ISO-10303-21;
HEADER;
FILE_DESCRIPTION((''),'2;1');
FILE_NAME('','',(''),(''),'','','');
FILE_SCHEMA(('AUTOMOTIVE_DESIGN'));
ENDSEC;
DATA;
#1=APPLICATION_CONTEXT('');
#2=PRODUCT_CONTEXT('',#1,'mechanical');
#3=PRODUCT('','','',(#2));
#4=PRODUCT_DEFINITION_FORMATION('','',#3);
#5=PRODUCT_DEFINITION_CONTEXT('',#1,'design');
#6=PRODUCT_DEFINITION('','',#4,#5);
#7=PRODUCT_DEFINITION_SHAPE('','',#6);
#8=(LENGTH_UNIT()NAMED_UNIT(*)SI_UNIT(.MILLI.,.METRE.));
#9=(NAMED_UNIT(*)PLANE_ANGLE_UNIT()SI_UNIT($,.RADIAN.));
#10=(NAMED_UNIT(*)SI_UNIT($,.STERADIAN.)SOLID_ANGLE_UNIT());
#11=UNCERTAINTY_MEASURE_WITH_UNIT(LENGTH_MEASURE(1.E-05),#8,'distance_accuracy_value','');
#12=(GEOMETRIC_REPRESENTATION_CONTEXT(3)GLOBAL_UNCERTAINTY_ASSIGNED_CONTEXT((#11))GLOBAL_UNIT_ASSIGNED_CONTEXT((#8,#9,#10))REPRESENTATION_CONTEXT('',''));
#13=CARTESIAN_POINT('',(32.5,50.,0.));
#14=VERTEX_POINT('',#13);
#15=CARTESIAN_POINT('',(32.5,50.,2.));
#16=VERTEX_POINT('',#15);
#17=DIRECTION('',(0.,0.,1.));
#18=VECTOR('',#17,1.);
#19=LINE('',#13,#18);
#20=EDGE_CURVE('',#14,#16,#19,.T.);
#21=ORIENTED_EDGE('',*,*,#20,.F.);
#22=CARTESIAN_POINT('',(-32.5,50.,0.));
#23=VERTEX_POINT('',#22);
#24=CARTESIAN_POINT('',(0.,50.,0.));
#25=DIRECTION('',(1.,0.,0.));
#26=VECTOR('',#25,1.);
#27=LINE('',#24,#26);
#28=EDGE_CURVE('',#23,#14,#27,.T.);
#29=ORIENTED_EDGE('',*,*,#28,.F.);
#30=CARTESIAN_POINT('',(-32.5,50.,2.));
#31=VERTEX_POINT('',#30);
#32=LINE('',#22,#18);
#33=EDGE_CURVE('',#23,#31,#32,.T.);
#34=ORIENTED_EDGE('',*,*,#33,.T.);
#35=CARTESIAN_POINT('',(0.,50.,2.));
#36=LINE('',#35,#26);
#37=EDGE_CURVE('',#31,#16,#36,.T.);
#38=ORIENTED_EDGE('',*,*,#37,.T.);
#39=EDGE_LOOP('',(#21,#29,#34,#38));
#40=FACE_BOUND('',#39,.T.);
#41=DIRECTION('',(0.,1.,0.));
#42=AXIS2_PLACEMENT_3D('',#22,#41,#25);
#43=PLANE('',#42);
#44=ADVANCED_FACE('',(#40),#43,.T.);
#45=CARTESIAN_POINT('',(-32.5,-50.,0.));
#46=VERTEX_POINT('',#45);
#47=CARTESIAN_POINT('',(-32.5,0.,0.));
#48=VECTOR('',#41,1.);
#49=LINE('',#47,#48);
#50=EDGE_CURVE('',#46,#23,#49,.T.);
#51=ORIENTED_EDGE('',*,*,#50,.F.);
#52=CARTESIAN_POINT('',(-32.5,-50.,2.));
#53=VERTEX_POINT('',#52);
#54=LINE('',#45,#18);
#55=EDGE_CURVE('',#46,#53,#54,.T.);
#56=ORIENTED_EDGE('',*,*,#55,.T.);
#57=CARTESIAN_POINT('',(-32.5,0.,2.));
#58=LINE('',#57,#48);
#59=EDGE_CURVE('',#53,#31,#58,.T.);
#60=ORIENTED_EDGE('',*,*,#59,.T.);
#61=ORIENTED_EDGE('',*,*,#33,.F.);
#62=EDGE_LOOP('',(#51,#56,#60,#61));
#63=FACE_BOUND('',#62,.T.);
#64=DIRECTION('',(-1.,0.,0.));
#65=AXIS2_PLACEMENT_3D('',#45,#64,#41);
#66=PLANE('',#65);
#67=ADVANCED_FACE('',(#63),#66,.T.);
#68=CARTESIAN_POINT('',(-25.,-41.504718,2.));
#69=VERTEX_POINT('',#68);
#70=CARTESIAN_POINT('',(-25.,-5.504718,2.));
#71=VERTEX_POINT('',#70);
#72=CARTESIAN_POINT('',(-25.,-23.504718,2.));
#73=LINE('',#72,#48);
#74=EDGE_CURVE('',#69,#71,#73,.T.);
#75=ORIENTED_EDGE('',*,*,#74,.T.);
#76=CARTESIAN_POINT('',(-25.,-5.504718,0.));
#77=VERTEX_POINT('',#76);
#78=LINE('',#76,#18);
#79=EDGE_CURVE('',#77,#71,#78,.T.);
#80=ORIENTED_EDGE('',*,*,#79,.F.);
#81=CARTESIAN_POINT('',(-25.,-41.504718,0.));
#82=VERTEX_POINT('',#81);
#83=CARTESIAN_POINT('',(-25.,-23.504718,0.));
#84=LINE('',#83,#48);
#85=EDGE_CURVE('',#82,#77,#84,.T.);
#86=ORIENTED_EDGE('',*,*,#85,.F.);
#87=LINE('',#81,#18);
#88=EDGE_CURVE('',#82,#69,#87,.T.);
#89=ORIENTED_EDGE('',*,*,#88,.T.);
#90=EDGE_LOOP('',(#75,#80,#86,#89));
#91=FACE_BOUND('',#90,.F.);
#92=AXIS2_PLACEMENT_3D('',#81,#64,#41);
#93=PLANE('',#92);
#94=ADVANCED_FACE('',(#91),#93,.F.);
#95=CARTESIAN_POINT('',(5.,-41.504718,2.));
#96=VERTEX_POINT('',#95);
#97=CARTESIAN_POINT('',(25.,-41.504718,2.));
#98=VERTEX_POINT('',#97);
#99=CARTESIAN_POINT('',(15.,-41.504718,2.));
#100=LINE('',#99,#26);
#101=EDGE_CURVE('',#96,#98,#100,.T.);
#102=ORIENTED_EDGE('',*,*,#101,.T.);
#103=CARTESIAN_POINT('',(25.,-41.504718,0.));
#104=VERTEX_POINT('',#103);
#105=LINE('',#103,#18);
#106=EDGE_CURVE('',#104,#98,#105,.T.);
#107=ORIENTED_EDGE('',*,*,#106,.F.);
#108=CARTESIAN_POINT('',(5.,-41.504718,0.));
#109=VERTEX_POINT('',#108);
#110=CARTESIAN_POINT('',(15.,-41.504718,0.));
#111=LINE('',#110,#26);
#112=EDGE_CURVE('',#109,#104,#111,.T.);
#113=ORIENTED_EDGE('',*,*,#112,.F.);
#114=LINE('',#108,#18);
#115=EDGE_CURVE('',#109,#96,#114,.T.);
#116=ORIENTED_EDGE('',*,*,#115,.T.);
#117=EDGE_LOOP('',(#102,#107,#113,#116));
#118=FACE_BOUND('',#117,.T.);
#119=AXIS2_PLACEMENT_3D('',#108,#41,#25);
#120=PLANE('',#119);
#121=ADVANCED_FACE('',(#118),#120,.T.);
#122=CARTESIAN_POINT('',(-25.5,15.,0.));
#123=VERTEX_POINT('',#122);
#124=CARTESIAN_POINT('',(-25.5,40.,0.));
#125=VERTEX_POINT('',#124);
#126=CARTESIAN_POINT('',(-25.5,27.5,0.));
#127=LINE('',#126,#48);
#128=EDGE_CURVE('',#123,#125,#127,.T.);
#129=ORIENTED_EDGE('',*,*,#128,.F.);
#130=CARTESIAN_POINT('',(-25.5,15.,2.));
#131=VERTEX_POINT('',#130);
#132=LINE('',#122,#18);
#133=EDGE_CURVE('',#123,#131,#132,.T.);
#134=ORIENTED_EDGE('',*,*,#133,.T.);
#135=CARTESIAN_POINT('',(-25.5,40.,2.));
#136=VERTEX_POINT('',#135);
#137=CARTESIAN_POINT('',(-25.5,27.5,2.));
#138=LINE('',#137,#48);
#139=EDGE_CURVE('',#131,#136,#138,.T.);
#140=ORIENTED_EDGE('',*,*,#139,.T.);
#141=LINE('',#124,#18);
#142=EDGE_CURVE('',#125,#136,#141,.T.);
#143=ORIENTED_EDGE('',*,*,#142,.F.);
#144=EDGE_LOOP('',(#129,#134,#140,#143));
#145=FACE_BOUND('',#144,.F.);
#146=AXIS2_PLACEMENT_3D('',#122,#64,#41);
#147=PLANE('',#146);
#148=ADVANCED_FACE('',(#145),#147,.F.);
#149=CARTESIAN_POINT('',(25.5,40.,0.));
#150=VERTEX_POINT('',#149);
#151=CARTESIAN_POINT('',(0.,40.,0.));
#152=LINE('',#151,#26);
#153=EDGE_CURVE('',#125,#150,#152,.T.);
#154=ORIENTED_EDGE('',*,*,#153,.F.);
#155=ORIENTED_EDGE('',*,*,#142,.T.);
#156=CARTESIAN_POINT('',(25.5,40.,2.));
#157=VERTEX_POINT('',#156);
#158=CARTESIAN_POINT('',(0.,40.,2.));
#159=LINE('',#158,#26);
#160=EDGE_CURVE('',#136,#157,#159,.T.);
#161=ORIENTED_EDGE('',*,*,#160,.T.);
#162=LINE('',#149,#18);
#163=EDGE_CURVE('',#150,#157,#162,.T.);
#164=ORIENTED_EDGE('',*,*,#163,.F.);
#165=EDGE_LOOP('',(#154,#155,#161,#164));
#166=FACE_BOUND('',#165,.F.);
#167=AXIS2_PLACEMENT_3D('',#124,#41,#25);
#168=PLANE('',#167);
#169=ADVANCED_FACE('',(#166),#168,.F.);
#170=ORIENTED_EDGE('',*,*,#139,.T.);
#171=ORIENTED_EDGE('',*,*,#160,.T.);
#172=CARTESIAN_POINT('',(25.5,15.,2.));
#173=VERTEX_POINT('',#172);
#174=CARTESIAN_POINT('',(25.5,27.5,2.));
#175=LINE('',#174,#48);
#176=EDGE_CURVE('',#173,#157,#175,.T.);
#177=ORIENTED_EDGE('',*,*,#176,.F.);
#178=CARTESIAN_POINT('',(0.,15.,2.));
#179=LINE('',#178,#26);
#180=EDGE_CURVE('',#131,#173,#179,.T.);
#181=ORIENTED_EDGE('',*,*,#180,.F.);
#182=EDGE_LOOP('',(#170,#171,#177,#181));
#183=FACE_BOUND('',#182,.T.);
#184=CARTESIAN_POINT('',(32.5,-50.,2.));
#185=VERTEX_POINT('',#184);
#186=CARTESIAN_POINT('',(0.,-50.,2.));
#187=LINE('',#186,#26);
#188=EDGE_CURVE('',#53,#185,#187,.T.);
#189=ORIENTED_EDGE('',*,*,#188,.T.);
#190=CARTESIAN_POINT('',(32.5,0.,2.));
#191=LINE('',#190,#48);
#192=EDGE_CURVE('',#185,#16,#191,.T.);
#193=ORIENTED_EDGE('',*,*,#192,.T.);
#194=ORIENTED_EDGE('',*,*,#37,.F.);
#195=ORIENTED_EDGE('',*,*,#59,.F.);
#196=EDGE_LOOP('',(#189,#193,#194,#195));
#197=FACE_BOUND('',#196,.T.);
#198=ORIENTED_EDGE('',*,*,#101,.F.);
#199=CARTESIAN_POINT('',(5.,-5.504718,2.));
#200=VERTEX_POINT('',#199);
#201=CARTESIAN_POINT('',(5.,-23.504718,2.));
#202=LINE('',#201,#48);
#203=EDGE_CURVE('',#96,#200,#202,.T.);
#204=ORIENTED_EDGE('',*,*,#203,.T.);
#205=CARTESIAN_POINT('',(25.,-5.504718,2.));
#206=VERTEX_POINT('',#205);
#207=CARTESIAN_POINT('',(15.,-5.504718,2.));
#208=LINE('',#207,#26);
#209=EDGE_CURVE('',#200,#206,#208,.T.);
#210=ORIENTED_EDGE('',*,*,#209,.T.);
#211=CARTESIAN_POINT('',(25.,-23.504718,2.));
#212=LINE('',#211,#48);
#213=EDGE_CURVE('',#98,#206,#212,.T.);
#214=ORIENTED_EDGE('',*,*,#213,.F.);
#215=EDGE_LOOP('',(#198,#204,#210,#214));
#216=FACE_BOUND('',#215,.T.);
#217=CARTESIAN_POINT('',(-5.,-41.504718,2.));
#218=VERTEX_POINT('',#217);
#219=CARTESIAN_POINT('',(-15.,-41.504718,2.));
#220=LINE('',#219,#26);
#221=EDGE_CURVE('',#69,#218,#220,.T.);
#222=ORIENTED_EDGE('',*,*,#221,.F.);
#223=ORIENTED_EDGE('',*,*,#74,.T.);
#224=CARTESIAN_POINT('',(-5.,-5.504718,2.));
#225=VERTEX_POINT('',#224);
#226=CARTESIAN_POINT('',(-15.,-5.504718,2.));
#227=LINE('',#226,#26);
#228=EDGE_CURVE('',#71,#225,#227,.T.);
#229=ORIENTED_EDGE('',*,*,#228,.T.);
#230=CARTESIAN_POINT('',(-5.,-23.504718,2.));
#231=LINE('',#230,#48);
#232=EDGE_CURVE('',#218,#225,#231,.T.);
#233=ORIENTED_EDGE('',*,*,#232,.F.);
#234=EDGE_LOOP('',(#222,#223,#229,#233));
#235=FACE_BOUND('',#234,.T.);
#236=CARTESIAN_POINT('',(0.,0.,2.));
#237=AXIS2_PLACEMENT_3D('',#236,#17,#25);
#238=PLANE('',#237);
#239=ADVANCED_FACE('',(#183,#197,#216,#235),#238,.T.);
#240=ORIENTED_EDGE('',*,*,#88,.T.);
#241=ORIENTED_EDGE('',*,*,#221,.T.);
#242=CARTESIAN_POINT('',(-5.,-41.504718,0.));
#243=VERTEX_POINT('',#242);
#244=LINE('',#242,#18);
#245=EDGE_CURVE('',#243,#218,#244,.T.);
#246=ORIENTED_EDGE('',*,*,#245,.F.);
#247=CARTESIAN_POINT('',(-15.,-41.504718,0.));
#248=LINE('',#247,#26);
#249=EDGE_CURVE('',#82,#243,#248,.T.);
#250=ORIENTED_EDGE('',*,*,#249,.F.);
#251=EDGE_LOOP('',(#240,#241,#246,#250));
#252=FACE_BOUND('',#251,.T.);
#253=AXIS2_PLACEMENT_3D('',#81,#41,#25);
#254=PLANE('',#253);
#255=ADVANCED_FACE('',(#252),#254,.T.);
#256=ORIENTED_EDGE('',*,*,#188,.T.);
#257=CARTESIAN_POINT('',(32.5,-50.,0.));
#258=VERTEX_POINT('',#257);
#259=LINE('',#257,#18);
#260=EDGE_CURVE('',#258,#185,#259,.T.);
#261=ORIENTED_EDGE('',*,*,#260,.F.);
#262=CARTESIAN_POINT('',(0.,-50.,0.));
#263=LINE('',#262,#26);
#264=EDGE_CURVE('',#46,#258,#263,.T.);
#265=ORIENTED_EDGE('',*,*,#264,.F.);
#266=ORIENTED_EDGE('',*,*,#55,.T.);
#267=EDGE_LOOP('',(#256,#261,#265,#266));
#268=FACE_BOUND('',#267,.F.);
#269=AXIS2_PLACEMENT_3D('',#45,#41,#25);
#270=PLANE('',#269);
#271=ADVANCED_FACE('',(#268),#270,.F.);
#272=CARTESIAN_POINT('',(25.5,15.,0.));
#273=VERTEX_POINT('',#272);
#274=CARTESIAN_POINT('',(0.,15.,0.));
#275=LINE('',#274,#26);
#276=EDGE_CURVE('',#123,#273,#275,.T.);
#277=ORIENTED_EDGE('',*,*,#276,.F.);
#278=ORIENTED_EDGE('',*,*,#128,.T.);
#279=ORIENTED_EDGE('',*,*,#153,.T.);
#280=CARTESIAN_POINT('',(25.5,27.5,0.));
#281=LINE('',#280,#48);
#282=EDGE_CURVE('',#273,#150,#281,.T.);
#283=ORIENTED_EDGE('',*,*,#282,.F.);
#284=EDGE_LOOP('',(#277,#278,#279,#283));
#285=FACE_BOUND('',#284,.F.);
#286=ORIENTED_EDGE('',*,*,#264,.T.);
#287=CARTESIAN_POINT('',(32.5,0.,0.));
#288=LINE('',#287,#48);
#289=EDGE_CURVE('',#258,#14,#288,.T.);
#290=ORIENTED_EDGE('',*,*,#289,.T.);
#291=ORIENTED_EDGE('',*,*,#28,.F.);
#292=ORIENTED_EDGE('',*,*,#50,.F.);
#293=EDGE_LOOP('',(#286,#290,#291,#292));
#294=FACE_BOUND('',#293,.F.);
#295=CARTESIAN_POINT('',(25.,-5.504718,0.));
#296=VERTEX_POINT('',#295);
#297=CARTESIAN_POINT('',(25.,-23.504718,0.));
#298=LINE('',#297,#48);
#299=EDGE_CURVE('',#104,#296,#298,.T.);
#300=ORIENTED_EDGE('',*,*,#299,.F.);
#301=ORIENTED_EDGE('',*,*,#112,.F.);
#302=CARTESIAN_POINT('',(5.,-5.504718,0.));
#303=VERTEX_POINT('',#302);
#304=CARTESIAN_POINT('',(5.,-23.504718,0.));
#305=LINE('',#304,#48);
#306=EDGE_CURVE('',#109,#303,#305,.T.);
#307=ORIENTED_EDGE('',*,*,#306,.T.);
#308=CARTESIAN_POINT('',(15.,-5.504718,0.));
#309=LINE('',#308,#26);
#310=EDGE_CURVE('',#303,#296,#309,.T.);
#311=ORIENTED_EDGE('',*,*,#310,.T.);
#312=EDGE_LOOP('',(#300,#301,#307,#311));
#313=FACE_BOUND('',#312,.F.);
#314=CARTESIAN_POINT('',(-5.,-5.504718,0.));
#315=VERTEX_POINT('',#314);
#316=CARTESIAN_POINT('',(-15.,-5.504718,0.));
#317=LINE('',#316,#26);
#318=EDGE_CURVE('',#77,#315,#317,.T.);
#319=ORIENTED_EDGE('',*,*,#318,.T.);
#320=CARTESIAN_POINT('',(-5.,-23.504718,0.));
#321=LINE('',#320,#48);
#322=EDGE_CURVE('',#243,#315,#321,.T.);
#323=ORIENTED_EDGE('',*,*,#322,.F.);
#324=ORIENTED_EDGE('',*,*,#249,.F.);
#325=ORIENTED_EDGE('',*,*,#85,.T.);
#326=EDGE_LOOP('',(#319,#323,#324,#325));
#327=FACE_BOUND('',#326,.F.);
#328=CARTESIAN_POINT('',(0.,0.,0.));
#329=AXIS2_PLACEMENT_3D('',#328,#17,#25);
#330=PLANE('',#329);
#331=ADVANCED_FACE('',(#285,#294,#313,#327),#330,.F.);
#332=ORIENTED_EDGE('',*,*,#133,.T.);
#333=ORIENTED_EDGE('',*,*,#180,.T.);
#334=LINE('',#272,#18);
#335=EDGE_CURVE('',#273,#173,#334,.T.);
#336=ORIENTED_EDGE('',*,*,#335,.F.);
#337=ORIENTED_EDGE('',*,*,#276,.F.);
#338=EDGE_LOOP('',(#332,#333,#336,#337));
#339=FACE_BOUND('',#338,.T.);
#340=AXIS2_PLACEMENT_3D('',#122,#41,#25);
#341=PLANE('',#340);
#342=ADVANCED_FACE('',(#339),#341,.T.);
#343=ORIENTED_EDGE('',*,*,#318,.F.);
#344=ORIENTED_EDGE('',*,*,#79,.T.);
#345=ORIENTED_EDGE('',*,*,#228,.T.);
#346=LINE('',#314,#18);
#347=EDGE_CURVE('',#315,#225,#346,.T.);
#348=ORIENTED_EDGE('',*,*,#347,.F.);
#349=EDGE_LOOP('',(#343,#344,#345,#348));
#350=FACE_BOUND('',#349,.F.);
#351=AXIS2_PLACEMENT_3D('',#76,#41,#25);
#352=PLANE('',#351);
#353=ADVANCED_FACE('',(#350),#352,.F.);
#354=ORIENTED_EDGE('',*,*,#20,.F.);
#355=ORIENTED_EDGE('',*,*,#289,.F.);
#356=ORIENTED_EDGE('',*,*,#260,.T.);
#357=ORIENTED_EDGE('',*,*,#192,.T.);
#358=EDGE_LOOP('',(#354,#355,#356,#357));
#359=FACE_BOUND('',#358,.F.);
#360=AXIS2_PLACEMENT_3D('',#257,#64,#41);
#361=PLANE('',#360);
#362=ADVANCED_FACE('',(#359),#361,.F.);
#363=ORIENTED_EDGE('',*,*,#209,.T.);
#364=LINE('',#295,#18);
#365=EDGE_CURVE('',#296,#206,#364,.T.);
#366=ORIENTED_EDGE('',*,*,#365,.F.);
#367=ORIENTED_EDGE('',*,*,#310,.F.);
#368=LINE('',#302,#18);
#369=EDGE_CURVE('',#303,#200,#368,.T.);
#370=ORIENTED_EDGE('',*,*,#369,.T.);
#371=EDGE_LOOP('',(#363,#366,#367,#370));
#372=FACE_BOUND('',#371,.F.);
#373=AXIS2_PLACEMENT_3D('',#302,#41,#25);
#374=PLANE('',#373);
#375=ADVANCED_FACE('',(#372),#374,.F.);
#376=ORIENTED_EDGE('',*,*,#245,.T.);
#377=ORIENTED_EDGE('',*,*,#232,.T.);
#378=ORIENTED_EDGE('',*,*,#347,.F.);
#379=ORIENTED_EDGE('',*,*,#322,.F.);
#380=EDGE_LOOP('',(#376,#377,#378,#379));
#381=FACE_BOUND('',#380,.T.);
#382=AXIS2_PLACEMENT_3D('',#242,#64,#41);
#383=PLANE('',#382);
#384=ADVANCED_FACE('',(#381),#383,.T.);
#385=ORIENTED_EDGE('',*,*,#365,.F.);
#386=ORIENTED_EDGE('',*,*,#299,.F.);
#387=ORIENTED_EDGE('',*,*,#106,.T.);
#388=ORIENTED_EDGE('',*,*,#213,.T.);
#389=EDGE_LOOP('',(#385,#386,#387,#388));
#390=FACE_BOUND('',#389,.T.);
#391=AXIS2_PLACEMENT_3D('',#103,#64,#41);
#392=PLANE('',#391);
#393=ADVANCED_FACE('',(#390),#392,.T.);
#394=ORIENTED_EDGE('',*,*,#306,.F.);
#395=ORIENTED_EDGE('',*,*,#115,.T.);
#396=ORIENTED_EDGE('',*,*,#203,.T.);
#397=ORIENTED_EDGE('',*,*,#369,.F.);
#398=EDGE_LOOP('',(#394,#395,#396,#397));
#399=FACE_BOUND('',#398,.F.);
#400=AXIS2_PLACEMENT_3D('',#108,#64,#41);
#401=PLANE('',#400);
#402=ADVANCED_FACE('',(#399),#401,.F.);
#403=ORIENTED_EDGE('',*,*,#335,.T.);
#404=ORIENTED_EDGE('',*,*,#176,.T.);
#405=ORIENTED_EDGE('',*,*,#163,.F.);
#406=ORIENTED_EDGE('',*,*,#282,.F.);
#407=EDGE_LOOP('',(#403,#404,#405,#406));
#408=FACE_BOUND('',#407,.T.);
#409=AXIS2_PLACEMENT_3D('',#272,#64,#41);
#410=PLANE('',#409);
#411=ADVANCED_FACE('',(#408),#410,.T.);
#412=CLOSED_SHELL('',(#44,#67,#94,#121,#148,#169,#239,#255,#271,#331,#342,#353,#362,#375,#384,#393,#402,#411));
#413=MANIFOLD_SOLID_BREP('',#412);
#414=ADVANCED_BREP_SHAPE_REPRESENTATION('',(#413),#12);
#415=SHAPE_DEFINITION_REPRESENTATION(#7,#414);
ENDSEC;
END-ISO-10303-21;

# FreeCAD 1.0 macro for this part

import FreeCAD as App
import Part
import Sketcher
from FreeCAD import Vector
Q = App.Units.Quantity

doc = App.newDocument("Part")
body = doc.addObject("PartDesign::Body", "Body")

# Sketch on XY plane
sketch1 = doc.addObject("Sketcher::SketchObject", "Sketch")
body.addObject(sketch1)
sketch1.AttachmentSupport = (doc.XY_Plane, [""])
sketch1.MapMode = "FlatFace"
sketch1.addGeometry(Part.LineSegment(Vector(-32, 50, 0), Vector(-32, -50, 0)), False)
sketch1.addGeometry(Part.LineSegment(Vector(-32, -50, 0), Vector(32, -50, 0)), False)
sketch1.addGeometry(Part.LineSegment(Vector(32, -50, 0), Vector(32, 50, 0)), False)
sketch1.addGeometry(Part.LineSegment(Vector(32, 50, 0), Vector(-32, 50, 0)), False)
sketch1.addGeometry(Part.LineSegment(Vector(-5, -42, 0), Vector(-25, -42, 0)), False)
sketch1.addGeometry(Part.LineSegment(Vector(-25, -42, 0), Vector(-25, -6, 0)), False)
sketch1.addGeometry(Part.LineSegment(Vector(-25, -6, 0), Vector(-5, -6, 0)), False)
sketch1.addGeometry(Part.LineSegment(Vector(-5, -6, 0), Vector(-5, -42, 0)), False)
sketch1.addGeometry(Part.LineSegment(Vector(25, -42, 0), Vector(5, -42, 0)), False)
sketch1.addGeometry(Part.LineSegment(Vector(5, -42, 0), Vector(5, -6, 0)), False)
sketch1.addGeometry(Part.LineSegment(Vector(5, -6, 0), Vector(25, -6, 0)), False)
sketch1.addGeometry(Part.LineSegment(Vector(25, -6, 0), Vector(25, -42, 0)), False)
sketch1.addGeometry(Part.LineSegment(Vector(26, 15, 0), Vector(-26, 15, 0)), False)
sketch1.addGeometry(Part.LineSegment(Vector(-26, 15, 0), Vector(-26, 40, 0)), False)
sketch1.addGeometry(Part.LineSegment(Vector(-26, 40, 0), Vector(26, 40, 0)), False)
sketch1.addGeometry(Part.LineSegment(Vector(26, 40, 0), Vector(26, 15, 0)), False)
sketch1.addConstraint(Sketcher.Constraint("Coincident", 0, 2, 1, 1))
sketch1.addConstraint(Sketcher.Constraint("Coincident", 1, 2, 2, 1))
sketch1.addConstraint(Sketcher.Constraint("Coincident", 2, 2, 3, 1))
sketch1.addConstraint(Sketcher.Constraint("Coincident", 3, 2, 0, 1))
sketch1.addConstraint(Sketcher.Constraint("Coincident", 4, 2, 5, 1))
sketch1.addConstraint(Sketcher.Constraint("Coincident", 5, 2, 6, 1))
sketch1.addConstraint(Sketcher.Constraint("Coincident", 6, 2, 7, 1))
sketch1.addConstraint(Sketcher.Constraint("Coincident", 7, 2, 4, 1))
sketch1.addConstraint(Sketcher.Constraint("Coincident", 8, 2, 9, 1))
sketch1.addConstraint(Sketcher.Constraint("Coincident", 9, 2, 10, 1))
sketch1.addConstraint(Sketcher.Constraint("Coincident", 10, 2, 11, 1))
sketch1.addConstraint(Sketcher.Constraint("Coincident", 11, 2, 8, 1))
sketch1.addConstraint(Sketcher.Constraint("Coincident", 12, 2, 13, 1))
sketch1.addConstraint(Sketcher.Constraint("Coincident", 13, 2, 14, 1))
sketch1.addConstraint(Sketcher.Constraint("Coincident", 14, 2, 15, 1))
sketch1.addConstraint(Sketcher.Constraint("Coincident", 15, 2, 12, 1))
sketch1.addConstraint(Sketcher.Constraint("Vertical", 0))
sketch1.addConstraint(Sketcher.Constraint("Horizontal", 1))
sketch1.addConstraint(Sketcher.Constraint("Vertical", 2))
sketch1.addConstraint(Sketcher.Constraint("Horizontal", 3))
sketch1.addConstraint(Sketcher.Constraint("Horizontal", 4))
sketch1.addConstraint(Sketcher.Constraint("Vertical", 5))
sketch1.addConstraint(Sketcher.Constraint("Horizontal", 6))
sketch1.addConstraint(Sketcher.Constraint("Vertical", 7))
sketch1.addConstraint(Sketcher.Constraint("Horizontal", 8))
sketch1.addConstraint(Sketcher.Constraint("Vertical", 9))
sketch1.addConstraint(Sketcher.Constraint("Horizontal", 10))
sketch1.addConstraint(Sketcher.Constraint("Vertical", 11))
sketch1.addConstraint(Sketcher.Constraint("Horizontal", 12))
sketch1.addConstraint(Sketcher.Constraint("Vertical", 13))
sketch1.addConstraint(Sketcher.Constraint("Horizontal", 14))
sketch1.addConstraint(Sketcher.Constraint("Vertical", 15))
sketch1.addConstraint(Sketcher.Constraint("Symmetric", 0, 2, 2, 2, -1, 1))
sketch1.addConstraint(Sketcher.Constraint("Symmetric", 7, 2, 8, 2, -2))
sketch1.addConstraint(Sketcher.Constraint("Symmetric", 5, 2, 10, 2, -2))
sketch1.addConstraint(Sketcher.Constraint("DistanceX", 1, 1, 1, 2, Q("65 mm")))
sketch1.addConstraint(Sketcher.Constraint("DistanceX", 4, 2, 4, 1, Q("20 mm")))
sketch1.addConstraint(Sketcher.Constraint("DistanceX", 12, 2, 12, 1, Q("51 mm")))
sketch1.addConstraint(Sketcher.Constraint("DistanceY", 0, 2, 0, 1, Q("100 mm")))
sketch1.addConstraint(Sketcher.Constraint("DistanceY", 5, 1, 5, 2, Q("36 mm")))
sketch1.addConstraint(Sketcher.Constraint("DistanceY", 13, 1, 13, 2, Q("25 mm")))
sketch1.addConstraint(Sketcher.Constraint("DistanceX", 4, 2, -1, 1, Q("25 mm")))
sketch1.addConstraint(Sketcher.Constraint("DistanceY", -1, 1, 12, 2, Q("15 mm")))
sketch1.addConstraint(Sketcher.Constraint("DistanceX", 3, 2, 12, 2, Q("7 mm")))
sketch1.addConstraint(Sketcher.Constraint("DistanceY", 5, 2, -1, 1, Q("5.504718 mm")))
pad1 = doc.addObject("PartDesign::Pad", "Pad")
body.addObject(pad1)
pad1.Profile = sketch1
pad1.Length = 2

doc.recompute()
